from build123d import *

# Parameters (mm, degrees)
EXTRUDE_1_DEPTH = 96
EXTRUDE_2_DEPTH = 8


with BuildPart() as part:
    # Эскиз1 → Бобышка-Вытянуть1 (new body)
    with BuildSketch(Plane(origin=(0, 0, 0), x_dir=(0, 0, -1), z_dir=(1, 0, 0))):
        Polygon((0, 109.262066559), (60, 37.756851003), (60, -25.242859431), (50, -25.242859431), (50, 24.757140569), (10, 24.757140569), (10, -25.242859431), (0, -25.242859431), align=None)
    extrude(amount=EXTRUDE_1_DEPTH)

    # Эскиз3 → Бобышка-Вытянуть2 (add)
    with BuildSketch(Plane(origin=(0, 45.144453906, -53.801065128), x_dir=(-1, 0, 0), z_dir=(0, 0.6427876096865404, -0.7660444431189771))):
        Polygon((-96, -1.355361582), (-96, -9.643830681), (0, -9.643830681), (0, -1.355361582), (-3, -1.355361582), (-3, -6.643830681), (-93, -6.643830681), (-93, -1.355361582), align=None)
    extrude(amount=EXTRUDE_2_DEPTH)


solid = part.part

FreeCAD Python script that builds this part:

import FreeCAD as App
import Part
import Sketcher
from FreeCAD import Vector
Q = App.Units.Quantity


def add_polygon(sketch, points):
    """Adds a closed chain of lines whose ends are joined by coincident constraints."""
    first, n = sketch.GeometryCount, len(points)
    for a, b in zip(points, points[1:] + points[:1]):
        sketch.addGeometry(Part.LineSegment(App.Vector(*a, 0), App.Vector(*b, 0)), False)
    for i in range(n):
        sketch.addConstraint(Sketcher.Constraint("Coincident", first + i, 2, first + (i + 1) % n, 1))

doc = App.newDocument("Part")
params = doc.addObject("Spreadsheet::Sheet", "Params")
for row, (alias, value) in enumerate([
    ("sketch1_width", "50 mm"),
    ("sketch1_height", "10 mm"),
    ("sketch1_height2", "40 mm"),
    ("pad1_length", "96 mm"),
    ("sketch2_width", "96 mm"),
    ("sketch2_width2", "3 mm"),
    ("pad2_length", "8 mm"),
], start=1):
    params.set(f"A{row}", alias)
    params.set(f"B{row}", "=" + value)
    params.setAlias(f"B{row}", alias)

body = doc.addObject("PartDesign::Body", "Body")

# Sketch on YZ plane
sketch1 = body.newObject("Sketcher::SketchObject", "Sketch")
sketch1.AttachmentSupport = (doc.getObject("YZ_Plane"), [""])
sketch1.MapMode = "FlatFace"
add_polygon(sketch1, [(38, -60), (109, 0), (-25, 0), (-25, -10), (25, -10), (25, -50), (-25, -50), (-25, -60)])  # lines 0-7
sketch1.addConstraint(Sketcher.Constraint("Horizontal", 1))
sketch1.addConstraint(Sketcher.Constraint("Vertical", 2))
sketch1.addConstraint(Sketcher.Constraint("Horizontal", 3))
sketch1.addConstraint(Sketcher.Constraint("Vertical", 4))
sketch1.addConstraint(Sketcher.Constraint("Horizontal", 5))
sketch1.addConstraint(Sketcher.Constraint("Vertical", 6))
sketch1.addConstraint(Sketcher.Constraint("Horizontal", 7))
sketch1.addConstraint(Sketcher.Constraint("PointOnObject", 0, 2, -1))
sketch1.addConstraint(Sketcher.Constraint("Vertical", 2, 2, 5, 2))
sketch1.addConstraint(Sketcher.Constraint("Equal", 2, 6))
sketch1.addConstraint(Sketcher.Constraint("DistanceX", 3, 1, 3, 2, Q("50 mm")))
sketch1.addConstraint(Sketcher.Constraint("DistanceY", 2, 2, 2, 1, Q("10 mm")))
sketch1.addConstraint(Sketcher.Constraint("DistanceY", 4, 2, 4, 1, Q("40 mm")))
sketch1.addConstraint(Sketcher.Constraint("Angle", 0, Q("40 deg")))
sketch1.addConstraint(Sketcher.Constraint("DistanceX", 7, 1, 7, 2, Q("62.99971 mm")))
sketch1.addConstraint(Sketcher.Constraint("DistanceX", 1, 2, -1, 1, Q("25.242859 mm")))
sketch1.setExpression("Constraints[18]", "Params.sketch1_width")
sketch1.setExpression("Constraints[19]", "Params.sketch1_height")
sketch1.setExpression("Constraints[20]", "Params.sketch1_height2")
pad1 = body.newObject("PartDesign::Pad", "Pad")
pad1.Profile = sketch1
pad1.setExpression("Length", "Params.pad1_length")

# Sketch on an angled plane
sketch2 = body.newObject("Sketcher::SketchObject", "Sketch001")
sketch2.Placement = App.Placement(Vector(0, 45.144454, -53.801065), App.Rotation(Vector(-1, 0, 0), Vector(0, 0.766044443, 0.64278761), Vector(0, 0.64278761, -0.766044443), "ZXY"))
add_polygon(sketch2, [(-96, -1.4), (-96, -9.6), (0, -9.6), (0, -1.4), (-3, -1.4), (-3, -6.6), (-93, -6.6), (-93, -1.4)])  # lines 0-7
sketch2.addConstraint(Sketcher.Constraint("Vertical", 0))
sketch2.addConstraint(Sketcher.Constraint("Horizontal", 1))
sketch2.addConstraint(Sketcher.Constraint("Vertical", 2))
sketch2.addConstraint(Sketcher.Constraint("Horizontal", 3))
sketch2.addConstraint(Sketcher.Constraint("Vertical", 4))
sketch2.addConstraint(Sketcher.Constraint("Horizontal", 5))
sketch2.addConstraint(Sketcher.Constraint("Vertical", 6))
sketch2.addConstraint(Sketcher.Constraint("Horizontal", 7))
sketch2.addConstraint(Sketcher.Constraint("PointOnObject", 1, 2, -2))
sketch2.addConstraint(Sketcher.Constraint("Horizontal", 3, 2, 6, 2))
sketch2.addConstraint(Sketcher.Constraint("Equal", 3, 7))
sketch2.addConstraint(Sketcher.Constraint("DistanceX", 1, 1, 1, 2, Q("96 mm")))
sketch2.addConstraint(Sketcher.Constraint("DistanceX", 3, 2, 3, 1, Q("3 mm")))
sketch2.addConstraint(Sketcher.Constraint("DistanceY", 1, 2, 4, 2, Q("3 mm")))
sketch2.addConstraint(Sketcher.Constraint("DistanceY", 0, 2, 0, 1, Q("8.288469 mm")))
sketch2.addConstraint(Sketcher.Constraint("DistanceY", 0, 2, -1, 1, Q("9.643831 mm")))
sketch2.setExpression("Constraints[19]", "Params.sketch2_width")
sketch2.setExpression("Constraints[20]", "Params.sketch2_width2")
pad2 = body.newObject("PartDesign::Pad", "Pad001")
pad2.Profile = sketch2
pad2.setExpression("Length", "Params.pad2_length")

doc.recompute()
